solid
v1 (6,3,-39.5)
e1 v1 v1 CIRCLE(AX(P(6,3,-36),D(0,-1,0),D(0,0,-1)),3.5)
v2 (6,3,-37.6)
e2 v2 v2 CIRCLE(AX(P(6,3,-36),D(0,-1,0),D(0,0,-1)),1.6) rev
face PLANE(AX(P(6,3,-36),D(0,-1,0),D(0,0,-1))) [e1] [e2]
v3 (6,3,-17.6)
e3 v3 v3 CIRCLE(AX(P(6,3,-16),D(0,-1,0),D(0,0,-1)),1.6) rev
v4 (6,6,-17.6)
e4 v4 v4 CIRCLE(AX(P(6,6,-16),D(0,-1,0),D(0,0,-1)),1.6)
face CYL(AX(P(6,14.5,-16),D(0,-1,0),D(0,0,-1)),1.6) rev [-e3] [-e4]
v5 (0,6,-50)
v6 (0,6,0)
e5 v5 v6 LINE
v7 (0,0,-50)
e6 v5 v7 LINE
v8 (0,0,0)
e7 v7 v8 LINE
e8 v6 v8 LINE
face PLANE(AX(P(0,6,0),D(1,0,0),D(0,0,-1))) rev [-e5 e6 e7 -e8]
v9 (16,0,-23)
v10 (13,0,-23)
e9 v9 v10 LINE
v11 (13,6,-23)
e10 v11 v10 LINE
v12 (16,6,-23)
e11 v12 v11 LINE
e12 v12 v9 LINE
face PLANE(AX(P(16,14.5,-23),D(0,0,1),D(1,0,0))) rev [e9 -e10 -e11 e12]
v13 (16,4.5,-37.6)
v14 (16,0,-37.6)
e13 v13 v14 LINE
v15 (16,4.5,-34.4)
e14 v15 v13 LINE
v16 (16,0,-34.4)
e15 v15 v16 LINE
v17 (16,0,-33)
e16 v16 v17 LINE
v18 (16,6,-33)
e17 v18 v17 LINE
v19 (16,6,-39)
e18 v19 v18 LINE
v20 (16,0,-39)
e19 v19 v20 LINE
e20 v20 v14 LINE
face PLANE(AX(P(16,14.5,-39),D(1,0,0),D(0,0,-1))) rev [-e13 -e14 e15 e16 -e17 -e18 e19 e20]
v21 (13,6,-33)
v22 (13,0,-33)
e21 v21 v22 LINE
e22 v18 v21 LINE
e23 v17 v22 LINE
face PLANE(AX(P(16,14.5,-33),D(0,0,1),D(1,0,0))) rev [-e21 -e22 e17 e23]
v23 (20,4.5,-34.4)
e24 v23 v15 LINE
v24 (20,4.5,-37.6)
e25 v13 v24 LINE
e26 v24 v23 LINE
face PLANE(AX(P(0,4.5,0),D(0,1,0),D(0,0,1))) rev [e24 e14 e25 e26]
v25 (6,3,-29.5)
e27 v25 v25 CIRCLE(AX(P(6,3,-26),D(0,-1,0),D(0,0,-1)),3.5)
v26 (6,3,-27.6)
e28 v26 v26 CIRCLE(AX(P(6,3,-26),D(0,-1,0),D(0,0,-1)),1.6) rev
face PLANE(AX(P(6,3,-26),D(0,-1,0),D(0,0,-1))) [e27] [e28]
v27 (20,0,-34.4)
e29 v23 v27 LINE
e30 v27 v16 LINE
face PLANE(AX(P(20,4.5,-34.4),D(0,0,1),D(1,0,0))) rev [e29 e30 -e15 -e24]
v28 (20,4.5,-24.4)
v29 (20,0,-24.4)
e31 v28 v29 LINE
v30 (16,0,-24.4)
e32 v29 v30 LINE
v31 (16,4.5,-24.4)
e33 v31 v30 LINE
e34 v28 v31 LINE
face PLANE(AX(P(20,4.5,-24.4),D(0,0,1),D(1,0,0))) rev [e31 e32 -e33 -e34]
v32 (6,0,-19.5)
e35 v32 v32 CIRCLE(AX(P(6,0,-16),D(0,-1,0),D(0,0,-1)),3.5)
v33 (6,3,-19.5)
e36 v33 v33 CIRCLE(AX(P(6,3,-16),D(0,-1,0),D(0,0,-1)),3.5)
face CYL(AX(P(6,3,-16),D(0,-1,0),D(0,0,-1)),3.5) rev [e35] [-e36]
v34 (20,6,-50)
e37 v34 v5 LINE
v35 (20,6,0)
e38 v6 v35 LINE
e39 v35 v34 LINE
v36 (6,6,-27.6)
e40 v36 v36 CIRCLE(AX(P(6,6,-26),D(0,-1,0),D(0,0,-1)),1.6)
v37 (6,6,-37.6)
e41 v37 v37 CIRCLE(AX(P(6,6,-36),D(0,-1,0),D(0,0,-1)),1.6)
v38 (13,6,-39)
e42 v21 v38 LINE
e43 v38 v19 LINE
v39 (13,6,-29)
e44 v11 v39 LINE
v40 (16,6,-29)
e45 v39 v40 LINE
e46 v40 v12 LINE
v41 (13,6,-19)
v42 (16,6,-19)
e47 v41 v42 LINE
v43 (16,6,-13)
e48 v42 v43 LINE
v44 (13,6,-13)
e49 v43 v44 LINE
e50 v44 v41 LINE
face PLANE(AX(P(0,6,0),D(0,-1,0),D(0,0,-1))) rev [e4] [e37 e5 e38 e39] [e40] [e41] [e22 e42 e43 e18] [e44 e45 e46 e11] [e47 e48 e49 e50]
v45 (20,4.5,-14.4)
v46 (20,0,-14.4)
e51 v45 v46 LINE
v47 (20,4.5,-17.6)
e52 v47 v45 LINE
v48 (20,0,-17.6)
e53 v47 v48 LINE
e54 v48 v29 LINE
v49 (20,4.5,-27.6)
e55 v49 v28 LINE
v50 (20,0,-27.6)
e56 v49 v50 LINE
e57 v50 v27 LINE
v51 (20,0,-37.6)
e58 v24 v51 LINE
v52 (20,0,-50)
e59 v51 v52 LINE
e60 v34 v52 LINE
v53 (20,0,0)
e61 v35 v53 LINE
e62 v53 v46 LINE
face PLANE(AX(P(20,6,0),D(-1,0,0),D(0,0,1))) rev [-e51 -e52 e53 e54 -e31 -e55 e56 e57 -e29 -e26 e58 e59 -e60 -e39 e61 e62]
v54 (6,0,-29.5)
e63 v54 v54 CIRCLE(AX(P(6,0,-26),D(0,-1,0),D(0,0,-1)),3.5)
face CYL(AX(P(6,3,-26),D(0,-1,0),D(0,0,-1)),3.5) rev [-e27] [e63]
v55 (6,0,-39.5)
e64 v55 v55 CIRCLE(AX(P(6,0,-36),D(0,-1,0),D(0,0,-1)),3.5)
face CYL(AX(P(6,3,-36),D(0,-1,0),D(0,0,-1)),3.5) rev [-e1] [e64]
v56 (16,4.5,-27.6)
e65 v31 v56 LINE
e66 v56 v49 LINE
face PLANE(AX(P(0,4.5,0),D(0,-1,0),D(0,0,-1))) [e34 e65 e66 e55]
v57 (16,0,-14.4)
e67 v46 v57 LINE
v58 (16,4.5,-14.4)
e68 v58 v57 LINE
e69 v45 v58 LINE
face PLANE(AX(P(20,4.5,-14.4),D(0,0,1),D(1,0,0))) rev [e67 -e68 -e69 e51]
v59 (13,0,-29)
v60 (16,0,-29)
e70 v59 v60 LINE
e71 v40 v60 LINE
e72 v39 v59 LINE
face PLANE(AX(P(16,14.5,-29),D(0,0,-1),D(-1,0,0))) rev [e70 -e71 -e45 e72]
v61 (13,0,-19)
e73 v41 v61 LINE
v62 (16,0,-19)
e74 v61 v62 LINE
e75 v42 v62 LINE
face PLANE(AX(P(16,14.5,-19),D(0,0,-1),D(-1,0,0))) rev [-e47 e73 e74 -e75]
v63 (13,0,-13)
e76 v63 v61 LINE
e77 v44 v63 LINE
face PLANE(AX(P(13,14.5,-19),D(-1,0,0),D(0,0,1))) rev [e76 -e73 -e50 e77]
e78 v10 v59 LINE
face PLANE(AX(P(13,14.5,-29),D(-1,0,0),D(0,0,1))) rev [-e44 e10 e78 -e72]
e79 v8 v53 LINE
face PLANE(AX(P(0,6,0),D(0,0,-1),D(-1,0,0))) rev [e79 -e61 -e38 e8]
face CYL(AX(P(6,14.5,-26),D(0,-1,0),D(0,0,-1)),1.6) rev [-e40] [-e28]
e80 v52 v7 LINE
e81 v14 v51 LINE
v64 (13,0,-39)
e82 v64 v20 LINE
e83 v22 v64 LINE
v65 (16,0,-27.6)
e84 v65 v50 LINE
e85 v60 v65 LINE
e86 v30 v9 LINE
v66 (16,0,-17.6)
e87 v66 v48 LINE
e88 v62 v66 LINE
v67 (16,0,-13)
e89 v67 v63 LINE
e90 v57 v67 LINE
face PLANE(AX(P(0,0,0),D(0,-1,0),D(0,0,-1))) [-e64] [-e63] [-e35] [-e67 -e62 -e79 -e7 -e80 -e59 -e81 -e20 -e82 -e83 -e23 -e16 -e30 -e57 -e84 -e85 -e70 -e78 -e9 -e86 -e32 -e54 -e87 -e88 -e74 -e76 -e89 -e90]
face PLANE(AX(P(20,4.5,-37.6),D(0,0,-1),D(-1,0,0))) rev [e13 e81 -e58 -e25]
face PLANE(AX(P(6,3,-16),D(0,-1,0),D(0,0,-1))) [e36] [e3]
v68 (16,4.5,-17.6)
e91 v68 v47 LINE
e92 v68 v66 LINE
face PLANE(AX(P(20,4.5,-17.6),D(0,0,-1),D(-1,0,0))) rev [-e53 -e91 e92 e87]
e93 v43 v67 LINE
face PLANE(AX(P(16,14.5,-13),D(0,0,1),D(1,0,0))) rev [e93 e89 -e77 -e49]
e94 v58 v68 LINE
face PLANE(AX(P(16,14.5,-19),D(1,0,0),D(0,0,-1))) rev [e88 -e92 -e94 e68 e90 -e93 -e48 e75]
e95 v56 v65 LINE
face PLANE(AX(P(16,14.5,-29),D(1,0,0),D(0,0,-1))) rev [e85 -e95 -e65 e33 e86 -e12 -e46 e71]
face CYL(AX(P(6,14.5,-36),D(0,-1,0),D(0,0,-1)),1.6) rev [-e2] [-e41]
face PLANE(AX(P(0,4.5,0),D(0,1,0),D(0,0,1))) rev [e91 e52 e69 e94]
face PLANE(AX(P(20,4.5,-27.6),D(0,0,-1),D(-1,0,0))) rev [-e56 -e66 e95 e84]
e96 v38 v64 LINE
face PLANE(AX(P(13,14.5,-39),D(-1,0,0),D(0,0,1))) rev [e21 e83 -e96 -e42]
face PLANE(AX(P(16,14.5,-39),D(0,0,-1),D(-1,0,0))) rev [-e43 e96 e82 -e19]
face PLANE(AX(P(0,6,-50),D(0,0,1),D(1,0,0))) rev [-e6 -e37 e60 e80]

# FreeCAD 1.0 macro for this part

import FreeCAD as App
import Part
import Sketcher

V = App.Vector
Q = App.Units.Quantity

doc = App.newDocument("Part")
body = doc.addObject("PartDesign::Body", "Body")

sketch1 = doc.addObject("Sketcher::SketchObject", "Sketch")
body.addObject(sketch1)
sketch1.AttachmentSupport = (doc.XZ_Plane, [""])
sketch1.MapMode = "FlatFace"
sketch1.addGeometry(Part.LineSegment(V(0, -50, 0), V(0, 0, 0)), False)
sketch1.addGeometry(Part.LineSegment(V(0, 0, 0), V(20, 0, 0)), False)
sketch1.addGeometry(Part.LineSegment(V(20, 0, 0), V(20, -50, 0)), False)
sketch1.addGeometry(Part.LineSegment(V(20, -50, 0), V(0, -50, 0)), False)
sketch1.addConstraint(Sketcher.Constraint("Coincident", 0, 2, 1, 1))
sketch1.addConstraint(Sketcher.Constraint("Coincident", 1, 2, 2, 1))
sketch1.addConstraint(Sketcher.Constraint("Coincident", 2, 2, 3, 1))
sketch1.addConstraint(Sketcher.Constraint("Coincident", 3, 2, 0, 1))
sketch1.addConstraint(Sketcher.Constraint("Vertical", 0))
sketch1.addConstraint(Sketcher.Constraint("Horizontal", 1))
sketch1.addConstraint(Sketcher.Constraint("Vertical", 2))
sketch1.addConstraint(Sketcher.Constraint("Horizontal", 3))
sketch1.addConstraint(Sketcher.Constraint("Coincident", 0, 2, -1, 1))
sketch1.addConstraint(Sketcher.Constraint("DistanceX", 1, 1, 1, 2, Q("20 mm")))
sketch1.addConstraint(Sketcher.Constraint("DistanceY", 0, 1, 0, 2, Q("50 mm")))
pad1 = doc.addObject("PartDesign::Pad", "Pad")
body.addObject(pad1)
pad1.Profile = sketch1
pad1.Length = 6
pad1.Reversed = True

sketch2 = doc.addObject("Sketcher::SketchObject", "Sketch001")
body.addObject(sketch2)
sketch2.AttachmentSupport = (doc.XZ_Plane, [""])
sketch2.MapMode = "FlatFace"
sketch2.addGeometry(Part.LineSegment(V(16, -24.4, 0), V(16, -27.6, 0)), False)
sketch2.addGeometry(Part.LineSegment(V(16, -27.6, 0), V(20, -27.6, 0)), False)
sketch2.addGeometry(Part.LineSegment(V(20, -27.6, 0), V(20, -24.4, 0)), False)
sketch2.addGeometry(Part.LineSegment(V(20, -24.4, 0), V(16, -24.4, 0)), False)
sketch2.addGeometry(Part.LineSegment(V(16, -14.4, 0), V(16, -17.6, 0)), False)
sketch2.addGeometry(Part.LineSegment(V(16, -17.6, 0), V(20, -17.6, 0)), False)
sketch2.addGeometry(Part.LineSegment(V(20, -17.6, 0), V(20, -14.4, 0)), False)
sketch2.addGeometry(Part.LineSegment(V(20, -14.4, 0), V(16, -14.4, 0)), False)
sketch2.addGeometry(Part.LineSegment(V(16, -34.4, 0), V(16, -37.6, 0)), False)
sketch2.addGeometry(Part.LineSegment(V(16, -37.6, 0), V(20, -37.6, 0)), False)
sketch2.addGeometry(Part.LineSegment(V(20, -37.6, 0), V(20, -34.4, 0)), False)
sketch2.addGeometry(Part.LineSegment(V(20, -34.4, 0), V(16, -34.4, 0)), False)
sketch2.addConstraint(Sketcher.Constraint("Coincident", 0, 2, 1, 1))
sketch2.addConstraint(Sketcher.Constraint("Coincident", 1, 2, 2, 1))
sketch2.addConstraint(Sketcher.Constraint("Coincident", 2, 2, 3, 1))
sketch2.addConstraint(Sketcher.Constraint("Coincident", 3, 2, 0, 1))
sketch2.addConstraint(Sketcher.Constraint("Coincident", 4, 2, 5, 1))
sketch2.addConstraint(Sketcher.Constraint("Coincident", 5, 2, 6, 1))
sketch2.addConstraint(Sketcher.Constraint("Coincident", 6, 2, 7, 1))
sketch2.addConstraint(Sketcher.Constraint("Coincident", 7, 2, 4, 1))
sketch2.addConstraint(Sketcher.Constraint("Coincident", 8, 2, 9, 1))
sketch2.addConstraint(Sketcher.Constraint("Coincident", 9, 2, 10, 1))
sketch2.addConstraint(Sketcher.Constraint("Coincident", 10, 2, 11, 1))
sketch2.addConstraint(Sketcher.Constraint("Coincident", 11, 2, 8, 1))
sketch2.addConstraint(Sketcher.Constraint("Vertical", 0))
sketch2.addConstraint(Sketcher.Constraint("Horizontal", 1))
sketch2.addConstraint(Sketcher.Constraint("Vertical", 2))
sketch2.addConstraint(Sketcher.Constraint("Horizontal", 3))
sketch2.addConstraint(Sketcher.Constraint("Vertical", 4))
sketch2.addConstraint(Sketcher.Constraint("Horizontal", 5))
sketch2.addConstraint(Sketcher.Constraint("Vertical", 6))
sketch2.addConstraint(Sketcher.Constraint("Horizontal", 7))
sketch2.addConstraint(Sketcher.Constraint("Vertical", 8))
sketch2.addConstraint(Sketcher.Constraint("Horizontal", 9))
sketch2.addConstraint(Sketcher.Constraint("Vertical", 10))
sketch2.addConstraint(Sketcher.Constraint("Horizontal", 11))
sketch2.addConstraint(Sketcher.Constraint("Vertical", 3, 2, 4, 2))
sketch2.addConstraint(Sketcher.Constraint("Vertical", 2, 2, 5, 2))
sketch2.addConstraint(Sketcher.Constraint("Vertical", 7, 2, 8, 2))
sketch2.addConstraint(Sketcher.Constraint("Vertical", 6, 2, 9, 2))
sketch2.addConstraint(Sketcher.Constraint("Equal", 2, 4))
sketch2.addConstraint(Sketcher.Constraint("Equal", 6, 8))
sketch2.addConstraint(Sketcher.Constraint("DistanceX", 1, 1, 1, 2, Q("4 mm")))
sketch2.addConstraint(Sketcher.Constraint("DistanceY", 0, 2, 0, 1, Q("3.2 mm")))
sketch2.addConstraint(Sketcher.Constraint("DistanceX", -1, 1, 0, 2, Q("16 mm")))
sketch2.addConstraint(Sketcher.Constraint("DistanceY", 0, 2, 4, 2, Q("10 mm")))
sketch2.addConstraint(Sketcher.Constraint("DistanceY", 8, 2, 0, 2, Q("10 mm")))
sketch2.addConstraint(Sketcher.Constraint("DistanceY", 0, 2, -1, 1, Q("27.6 mm")))
pocket1 = doc.addObject("PartDesign::Pocket", "Pocket")
body.addObject(pocket1)
pocket1.Profile = sketch2
pocket1.Length = 4.5

sketch3 = doc.addObject("Sketcher::SketchObject", "Sketch002")
body.addObject(sketch3)
sketch3.AttachmentSupport = (doc.XZ_Plane, [""])
sketch3.MapMode = "FlatFace"
sketch3.addGeometry(Part.Circle(V(6, -16, 0), V(0, 0, 1), 1.6), False)
sketch3.addGeometry(Part.Circle(V(6, -26, 0), V(0, 0, 1), 1.6), False)
sketch3.addGeometry(Part.Circle(V(6, -36, 0), V(0, 0, 1), 1.6), False)
sketch3.addGeometry(Part.LineSegment(V(13, -33, 0), V(13, -39, 0)), False)
sketch3.addGeometry(Part.LineSegment(V(13, -39, 0), V(16, -39, 0)), False)
sketch3.addGeometry(Part.LineSegment(V(16, -39, 0), V(16, -33, 0)), False)
sketch3.addGeometry(Part.LineSegment(V(16, -33, 0), V(13, -33, 0)), False)
sketch3.addGeometry(Part.LineSegment(V(13, -23, 0), V(13, -29, 0)), False)
sketch3.addGeometry(Part.LineSegment(V(13, -29, 0), V(16, -29, 0)), False)
sketch3.addGeometry(Part.LineSegment(V(16, -29, 0), V(16, -23, 0)), False)
sketch3.addGeometry(Part.LineSegment(V(16, -23, 0), V(13, -23, 0)), False)
sketch3.addGeometry(Part.LineSegment(V(13, -13, 0), V(13, -19, 0)), False)
sketch3.addGeometry(Part.LineSegment(V(13, -19, 0), V(16, -19, 0)), False)
sketch3.addGeometry(Part.LineSegment(V(16, -19, 0), V(16, -13, 0)), False)
sketch3.addGeometry(Part.LineSegment(V(16, -13, 0), V(13, -13, 0)), False)
sketch3.addConstraint(Sketcher.Constraint("Coincident", 3, 2, 4, 1))
sketch3.addConstraint(Sketcher.Constraint("Coincident", 4, 2, 5, 1))
sketch3.addConstraint(Sketcher.Constraint("Coincident", 5, 2, 6, 1))
sketch3.addConstraint(Sketcher.Constraint("Coincident", 6, 2, 3, 1))
sketch3.addConstraint(Sketcher.Constraint("Coincident", 7, 2, 8, 1))
sketch3.addConstraint(Sketcher.Constraint("Coincident", 8, 2, 9, 1))
sketch3.addConstraint(Sketcher.Constraint("Coincident", 9, 2, 10, 1))
sketch3.addConstraint(Sketcher.Constraint("Coincident", 10, 2, 7, 1))
sketch3.addConstraint(Sketcher.Constraint("Coincident", 11, 2, 12, 1))
sketch3.addConstraint(Sketcher.Constraint("Coincident", 12, 2, 13, 1))
sketch3.addConstraint(Sketcher.Constraint("Coincident", 13, 2, 14, 1))
sketch3.addConstraint(Sketcher.Constraint("Coincident", 14, 2, 11, 1))
sketch3.addConstraint(Sketcher.Constraint("Vertical", 3))
sketch3.addConstraint(Sketcher.Constraint("Horizontal", 4))
sketch3.addConstraint(Sketcher.Constraint("Vertical", 5))
sketch3.addConstraint(Sketcher.Constraint("Horizontal", 6))
sketch3.addConstraint(Sketcher.Constraint("Vertical", 7))
sketch3.addConstraint(Sketcher.Constraint("Horizontal", 8))
sketch3.addConstraint(Sketcher.Constraint("Vertical", 9))
sketch3.addConstraint(Sketcher.Constraint("Horizontal", 10))
sketch3.addConstraint(Sketcher.Constraint("Vertical", 11))
sketch3.addConstraint(Sketcher.Constraint("Horizontal", 12))
sketch3.addConstraint(Sketcher.Constraint("Vertical", 13))
sketch3.addConstraint(Sketcher.Constraint("Horizontal", 14))
sketch3.addConstraint(Sketcher.Constraint("Equal", 0, 1))
sketch3.addConstraint(Sketcher.Constraint("Equal", 1, 2))
sketch3.addConstraint(Sketcher.Constraint("Vertical", 0, 3, 1, 3))
sketch3.addConstraint(Sketcher.Constraint("Vertical", 1, 3, 2, 3))
sketch3.addConstraint(Sketcher.Constraint("Vertical", 6, 2, 7, 2))
sketch3.addConstraint(Sketcher.Constraint("Vertical", 5, 2, 8, 2))
sketch3.addConstraint(Sketcher.Constraint("Vertical", 10, 2, 11, 2))
sketch3.addConstraint(Sketcher.Constraint("Vertical", 9, 2, 12, 2))
sketch3.addConstraint(Sketcher.Constraint("Equal", 5, 7))
sketch3.addConstraint(Sketcher.Constraint("Equal", 9, 11))
sketch3.addConstraint(Sketcher.Constraint("Diameter", 0, Q("3.2 mm")))
sketch3.addConstraint(Sketcher.Constraint("DistanceX", 4, 1, 4, 2, Q("3 mm")))
sketch3.addConstraint(Sketcher.Constraint("DistanceY", 3, 2, 3, 1, Q("6 mm")))
sketch3.addConstraint(Sketcher.Constraint("DistanceX", -1, 1, 0, 3, Q("6 mm")))
sketch3.addConstraint(Sketcher.Constraint("DistanceY", 0, 3, -1, 1, Q("16 mm")))
sketch3.addConstraint(Sketcher.Constraint("DistanceY", 1, 3, -1, 1, Q("26 mm")))
sketch3.addConstraint(Sketcher.Constraint("DistanceY", 2, 3, -1, 1, Q("36 mm")))
sketch3.addConstraint(Sketcher.Constraint("DistanceX", -1, 1, 3, 2, Q("13 mm")))
sketch3.addConstraint(Sketcher.Constraint("DistanceY", 3, 2, -1, 1, Q("39 mm")))
sketch3.addConstraint(Sketcher.Constraint("DistanceY", 7, 2, -1, 1, Q("29 mm")))
sketch3.addConstraint(Sketcher.Constraint("DistanceY", 11, 2, -1, 1, Q("19 mm")))
pocket2 = doc.addObject("PartDesign::Pocket", "Pocket001")
body.addObject(pocket2)
pocket2.Profile = sketch3
pocket2.Length = 14.5

sketch4 = doc.addObject("Sketcher::SketchObject", "Sketch003")
body.addObject(sketch4)
sketch4.AttachmentSupport = (doc.XZ_Plane, [""])
sketch4.MapMode = "FlatFace"
sketch4.addGeometry(Part.Circle(V(6, -16, 0), V(0, 0, 1), 3.5), False)
sketch4.addGeometry(Part.Circle(V(6, -26, 0), V(0, 0, 1), 3.5), False)
sketch4.addGeometry(Part.Circle(V(6, -36, 0), V(0, 0, 1), 3.5), False)
sketch4.addConstraint(Sketcher.Constraint("Equal", 0, 1))
sketch4.addConstraint(Sketcher.Constraint("Equal", 1, 2))
sketch4.addConstraint(Sketcher.Constraint("Vertical", 0, 3, 1, 3))
sketch4.addConstraint(Sketcher.Constraint("Vertical", 1, 3, 2, 3))
sketch4.addConstraint(Sketcher.Constraint("Diameter", 0, Q("7 mm")))
sketch4.addConstraint(Sketcher.Constraint("DistanceX", -1, 1, 0, 3, Q("6 mm")))
sketch4.addConstraint(Sketcher.Constraint("DistanceY", 0, 3, -1, 1, Q("16 mm")))
sketch4.addConstraint(Sketcher.Constraint("DistanceY", 1, 3, -1, 1, Q("26 mm")))
sketch4.addConstraint(Sketcher.Constraint("DistanceY", 2, 3, -1, 1, Q("36 mm")))
pocket3 = doc.addObject("PartDesign::Pocket", "Pocket002")
body.addObject(pocket3)
pocket3.Profile = sketch4
pocket3.Length = 3

doc.recompute()
